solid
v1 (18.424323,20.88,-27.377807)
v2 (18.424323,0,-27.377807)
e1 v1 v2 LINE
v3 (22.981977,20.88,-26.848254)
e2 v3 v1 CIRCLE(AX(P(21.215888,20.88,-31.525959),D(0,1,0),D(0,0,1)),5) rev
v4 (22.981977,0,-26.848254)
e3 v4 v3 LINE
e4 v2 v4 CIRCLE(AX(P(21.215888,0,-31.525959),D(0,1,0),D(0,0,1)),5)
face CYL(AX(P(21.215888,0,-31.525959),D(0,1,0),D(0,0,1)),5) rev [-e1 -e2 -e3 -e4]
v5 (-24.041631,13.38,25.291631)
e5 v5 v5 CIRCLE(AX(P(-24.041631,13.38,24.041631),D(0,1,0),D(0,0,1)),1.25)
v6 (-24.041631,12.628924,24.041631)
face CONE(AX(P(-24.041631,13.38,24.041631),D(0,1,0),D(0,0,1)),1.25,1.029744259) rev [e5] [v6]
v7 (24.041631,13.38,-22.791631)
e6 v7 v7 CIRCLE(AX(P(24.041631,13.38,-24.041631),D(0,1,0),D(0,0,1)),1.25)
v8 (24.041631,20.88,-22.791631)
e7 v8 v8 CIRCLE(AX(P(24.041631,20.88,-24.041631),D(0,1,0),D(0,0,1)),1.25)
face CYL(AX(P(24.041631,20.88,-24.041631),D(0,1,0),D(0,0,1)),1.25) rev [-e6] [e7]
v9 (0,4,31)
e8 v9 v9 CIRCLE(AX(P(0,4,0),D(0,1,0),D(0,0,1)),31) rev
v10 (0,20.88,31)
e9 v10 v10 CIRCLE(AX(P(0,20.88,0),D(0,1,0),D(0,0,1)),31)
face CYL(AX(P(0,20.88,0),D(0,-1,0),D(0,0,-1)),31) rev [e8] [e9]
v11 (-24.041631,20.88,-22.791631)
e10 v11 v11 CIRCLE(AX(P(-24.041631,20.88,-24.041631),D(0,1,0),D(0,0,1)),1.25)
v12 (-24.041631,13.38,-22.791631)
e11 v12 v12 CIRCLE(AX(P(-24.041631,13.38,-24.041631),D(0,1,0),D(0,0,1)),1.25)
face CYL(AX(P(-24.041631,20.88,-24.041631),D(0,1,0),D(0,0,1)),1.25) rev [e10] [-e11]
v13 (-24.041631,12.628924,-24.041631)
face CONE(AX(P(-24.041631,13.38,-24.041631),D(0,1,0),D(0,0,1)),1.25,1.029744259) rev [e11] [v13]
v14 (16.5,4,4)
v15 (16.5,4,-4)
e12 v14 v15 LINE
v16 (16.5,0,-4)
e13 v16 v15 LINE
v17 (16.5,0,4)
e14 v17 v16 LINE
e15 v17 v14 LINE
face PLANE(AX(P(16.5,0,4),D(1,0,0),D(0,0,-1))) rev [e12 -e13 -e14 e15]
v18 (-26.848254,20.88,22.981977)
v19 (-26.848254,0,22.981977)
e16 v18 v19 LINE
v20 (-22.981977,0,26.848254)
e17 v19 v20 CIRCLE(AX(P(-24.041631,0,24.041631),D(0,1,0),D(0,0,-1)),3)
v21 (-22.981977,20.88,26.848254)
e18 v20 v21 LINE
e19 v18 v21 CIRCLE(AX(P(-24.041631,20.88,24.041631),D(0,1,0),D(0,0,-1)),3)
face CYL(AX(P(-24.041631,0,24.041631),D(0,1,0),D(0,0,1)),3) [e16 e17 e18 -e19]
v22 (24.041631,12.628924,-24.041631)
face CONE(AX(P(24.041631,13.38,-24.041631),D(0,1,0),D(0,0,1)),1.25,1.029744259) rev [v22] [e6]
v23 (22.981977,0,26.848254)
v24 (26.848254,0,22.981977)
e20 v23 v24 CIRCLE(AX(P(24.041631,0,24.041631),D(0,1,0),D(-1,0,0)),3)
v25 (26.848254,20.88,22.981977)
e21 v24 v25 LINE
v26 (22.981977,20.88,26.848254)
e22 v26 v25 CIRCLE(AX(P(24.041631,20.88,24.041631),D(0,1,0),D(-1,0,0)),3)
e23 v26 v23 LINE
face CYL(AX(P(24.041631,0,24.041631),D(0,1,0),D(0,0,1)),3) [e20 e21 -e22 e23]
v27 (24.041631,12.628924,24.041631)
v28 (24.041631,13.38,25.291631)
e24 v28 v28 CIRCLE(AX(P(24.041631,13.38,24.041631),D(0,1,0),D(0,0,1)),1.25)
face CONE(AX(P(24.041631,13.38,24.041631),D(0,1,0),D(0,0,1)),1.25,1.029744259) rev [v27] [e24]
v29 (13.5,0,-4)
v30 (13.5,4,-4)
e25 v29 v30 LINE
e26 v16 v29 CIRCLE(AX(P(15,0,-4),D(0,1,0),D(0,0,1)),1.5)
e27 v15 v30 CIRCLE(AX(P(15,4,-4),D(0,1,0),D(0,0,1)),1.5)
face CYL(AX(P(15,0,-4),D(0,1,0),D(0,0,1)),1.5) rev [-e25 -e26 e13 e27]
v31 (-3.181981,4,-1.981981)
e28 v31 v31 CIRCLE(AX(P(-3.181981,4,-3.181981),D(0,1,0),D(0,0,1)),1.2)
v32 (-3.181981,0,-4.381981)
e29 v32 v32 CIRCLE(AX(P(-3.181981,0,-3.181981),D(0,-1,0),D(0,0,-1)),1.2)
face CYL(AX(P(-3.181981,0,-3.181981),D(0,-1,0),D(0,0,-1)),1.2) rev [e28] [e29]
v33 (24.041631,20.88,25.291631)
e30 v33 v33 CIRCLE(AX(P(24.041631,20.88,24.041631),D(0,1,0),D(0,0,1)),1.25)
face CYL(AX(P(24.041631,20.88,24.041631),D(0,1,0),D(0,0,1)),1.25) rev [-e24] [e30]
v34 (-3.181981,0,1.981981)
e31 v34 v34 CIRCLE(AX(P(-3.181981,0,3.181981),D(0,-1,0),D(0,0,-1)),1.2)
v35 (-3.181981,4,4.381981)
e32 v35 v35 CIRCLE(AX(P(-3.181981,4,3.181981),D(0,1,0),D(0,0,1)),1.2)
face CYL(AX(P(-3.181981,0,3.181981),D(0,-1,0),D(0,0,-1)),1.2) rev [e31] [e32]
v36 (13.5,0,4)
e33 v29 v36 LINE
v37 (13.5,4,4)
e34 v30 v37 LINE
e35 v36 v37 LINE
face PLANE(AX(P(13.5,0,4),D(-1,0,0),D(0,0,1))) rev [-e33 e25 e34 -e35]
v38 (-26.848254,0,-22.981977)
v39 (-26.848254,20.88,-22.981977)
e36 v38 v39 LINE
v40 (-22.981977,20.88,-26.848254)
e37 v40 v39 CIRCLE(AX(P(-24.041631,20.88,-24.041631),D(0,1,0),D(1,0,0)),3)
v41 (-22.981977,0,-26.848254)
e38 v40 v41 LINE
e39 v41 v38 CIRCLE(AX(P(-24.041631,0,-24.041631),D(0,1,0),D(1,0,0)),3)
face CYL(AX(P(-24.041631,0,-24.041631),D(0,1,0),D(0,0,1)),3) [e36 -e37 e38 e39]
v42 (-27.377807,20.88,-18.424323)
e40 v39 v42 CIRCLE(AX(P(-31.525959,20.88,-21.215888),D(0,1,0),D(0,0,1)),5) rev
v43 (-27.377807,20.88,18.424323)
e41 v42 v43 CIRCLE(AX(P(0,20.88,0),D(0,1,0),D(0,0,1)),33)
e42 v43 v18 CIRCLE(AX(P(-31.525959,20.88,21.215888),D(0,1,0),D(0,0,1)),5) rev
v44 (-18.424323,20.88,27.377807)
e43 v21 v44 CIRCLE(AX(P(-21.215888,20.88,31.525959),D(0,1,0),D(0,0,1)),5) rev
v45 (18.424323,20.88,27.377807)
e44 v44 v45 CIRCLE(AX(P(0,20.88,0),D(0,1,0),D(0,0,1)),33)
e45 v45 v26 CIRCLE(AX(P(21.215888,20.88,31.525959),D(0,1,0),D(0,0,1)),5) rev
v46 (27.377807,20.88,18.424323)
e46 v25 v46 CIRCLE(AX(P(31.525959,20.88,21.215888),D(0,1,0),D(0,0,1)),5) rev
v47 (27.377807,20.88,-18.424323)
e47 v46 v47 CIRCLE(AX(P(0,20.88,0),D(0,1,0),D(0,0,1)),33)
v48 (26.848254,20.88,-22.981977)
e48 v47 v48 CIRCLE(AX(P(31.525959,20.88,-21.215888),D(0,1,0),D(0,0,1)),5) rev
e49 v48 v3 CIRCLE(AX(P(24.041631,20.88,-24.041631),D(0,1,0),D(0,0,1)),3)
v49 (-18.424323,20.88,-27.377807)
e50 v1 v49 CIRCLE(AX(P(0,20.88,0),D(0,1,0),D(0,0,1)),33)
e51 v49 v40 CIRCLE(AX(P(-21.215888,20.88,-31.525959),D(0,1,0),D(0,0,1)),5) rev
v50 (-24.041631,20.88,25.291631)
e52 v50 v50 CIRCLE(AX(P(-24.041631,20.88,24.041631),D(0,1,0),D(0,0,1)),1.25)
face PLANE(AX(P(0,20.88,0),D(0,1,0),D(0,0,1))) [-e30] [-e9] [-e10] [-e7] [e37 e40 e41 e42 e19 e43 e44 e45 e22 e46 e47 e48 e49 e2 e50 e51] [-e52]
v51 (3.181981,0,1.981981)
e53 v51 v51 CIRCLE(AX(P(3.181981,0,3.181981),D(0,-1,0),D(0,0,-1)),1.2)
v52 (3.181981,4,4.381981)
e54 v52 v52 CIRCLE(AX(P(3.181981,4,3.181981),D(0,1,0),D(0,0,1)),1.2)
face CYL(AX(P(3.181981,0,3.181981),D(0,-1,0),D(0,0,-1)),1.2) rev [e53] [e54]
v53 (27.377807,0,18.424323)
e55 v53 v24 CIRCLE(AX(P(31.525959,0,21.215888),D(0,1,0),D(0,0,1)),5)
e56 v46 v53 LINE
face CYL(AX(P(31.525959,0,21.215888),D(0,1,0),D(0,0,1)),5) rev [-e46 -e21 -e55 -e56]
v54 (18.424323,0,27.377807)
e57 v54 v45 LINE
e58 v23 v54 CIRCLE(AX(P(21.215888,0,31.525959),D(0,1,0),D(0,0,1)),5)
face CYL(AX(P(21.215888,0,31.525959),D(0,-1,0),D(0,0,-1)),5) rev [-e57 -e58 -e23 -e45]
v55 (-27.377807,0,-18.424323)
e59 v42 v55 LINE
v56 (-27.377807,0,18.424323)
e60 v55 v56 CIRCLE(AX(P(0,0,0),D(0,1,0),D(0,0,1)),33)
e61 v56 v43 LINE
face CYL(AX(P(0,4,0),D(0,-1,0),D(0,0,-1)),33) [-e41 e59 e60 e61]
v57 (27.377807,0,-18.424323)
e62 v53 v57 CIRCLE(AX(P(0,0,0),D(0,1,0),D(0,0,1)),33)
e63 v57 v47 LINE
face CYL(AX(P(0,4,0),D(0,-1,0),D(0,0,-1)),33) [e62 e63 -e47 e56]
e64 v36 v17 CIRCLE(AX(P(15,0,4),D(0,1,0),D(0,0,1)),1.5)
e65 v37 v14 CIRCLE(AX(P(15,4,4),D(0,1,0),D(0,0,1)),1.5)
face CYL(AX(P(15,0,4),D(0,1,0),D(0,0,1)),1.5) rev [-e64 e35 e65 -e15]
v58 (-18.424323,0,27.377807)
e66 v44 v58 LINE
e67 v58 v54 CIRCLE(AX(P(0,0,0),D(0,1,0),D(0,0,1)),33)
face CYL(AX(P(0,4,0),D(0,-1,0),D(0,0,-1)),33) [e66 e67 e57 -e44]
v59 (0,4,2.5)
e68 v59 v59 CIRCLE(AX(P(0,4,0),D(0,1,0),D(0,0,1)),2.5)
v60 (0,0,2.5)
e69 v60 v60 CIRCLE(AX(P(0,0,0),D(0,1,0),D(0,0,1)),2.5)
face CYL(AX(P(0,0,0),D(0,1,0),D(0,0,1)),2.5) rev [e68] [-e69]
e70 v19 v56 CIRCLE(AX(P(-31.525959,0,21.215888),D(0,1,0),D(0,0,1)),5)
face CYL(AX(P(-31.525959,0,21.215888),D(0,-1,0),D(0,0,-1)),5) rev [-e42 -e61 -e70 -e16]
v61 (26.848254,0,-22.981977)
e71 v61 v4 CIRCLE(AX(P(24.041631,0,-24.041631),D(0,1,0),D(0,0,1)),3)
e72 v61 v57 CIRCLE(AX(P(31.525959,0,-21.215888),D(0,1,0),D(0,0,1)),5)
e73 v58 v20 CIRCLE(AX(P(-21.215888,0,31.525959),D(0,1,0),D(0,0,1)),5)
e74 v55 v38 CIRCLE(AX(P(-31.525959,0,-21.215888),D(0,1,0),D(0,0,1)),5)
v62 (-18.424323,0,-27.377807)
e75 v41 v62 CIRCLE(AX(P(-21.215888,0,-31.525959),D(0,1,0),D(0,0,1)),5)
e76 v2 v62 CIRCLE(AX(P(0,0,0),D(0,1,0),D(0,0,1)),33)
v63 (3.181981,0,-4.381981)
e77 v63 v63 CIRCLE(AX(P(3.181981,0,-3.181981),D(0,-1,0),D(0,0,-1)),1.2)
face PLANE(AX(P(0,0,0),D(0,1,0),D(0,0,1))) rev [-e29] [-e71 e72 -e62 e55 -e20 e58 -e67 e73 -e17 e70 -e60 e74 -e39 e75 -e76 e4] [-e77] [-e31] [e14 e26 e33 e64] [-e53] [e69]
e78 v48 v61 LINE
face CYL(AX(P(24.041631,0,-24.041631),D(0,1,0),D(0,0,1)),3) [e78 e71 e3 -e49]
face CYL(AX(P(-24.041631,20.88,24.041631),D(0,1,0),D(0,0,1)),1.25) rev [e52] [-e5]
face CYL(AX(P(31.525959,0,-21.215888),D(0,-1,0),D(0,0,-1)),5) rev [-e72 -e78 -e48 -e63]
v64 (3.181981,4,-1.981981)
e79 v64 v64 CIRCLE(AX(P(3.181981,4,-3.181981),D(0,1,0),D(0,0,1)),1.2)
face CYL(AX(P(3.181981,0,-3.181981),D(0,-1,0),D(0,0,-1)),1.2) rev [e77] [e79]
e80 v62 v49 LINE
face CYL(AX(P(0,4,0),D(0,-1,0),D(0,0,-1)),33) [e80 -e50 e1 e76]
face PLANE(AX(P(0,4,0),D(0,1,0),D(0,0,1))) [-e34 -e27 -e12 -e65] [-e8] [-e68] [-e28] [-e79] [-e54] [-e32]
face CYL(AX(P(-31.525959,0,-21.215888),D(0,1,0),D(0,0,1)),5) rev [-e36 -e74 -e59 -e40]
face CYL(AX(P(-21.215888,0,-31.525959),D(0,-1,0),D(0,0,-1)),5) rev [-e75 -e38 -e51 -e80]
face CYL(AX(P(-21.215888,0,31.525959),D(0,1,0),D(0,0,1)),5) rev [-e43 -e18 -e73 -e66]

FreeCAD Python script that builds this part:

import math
import FreeCAD as App
import Part
import Sketcher
from FreeCAD import Vector
Q = App.Units.Quantity


def edges_at(feature, points):
    """Names of the edges that pass closest to the given points."""
    edges = feature.Shape.Edges
    near = lambda p: min(range(len(edges)), key=lambda i: edges[i].distToShape(Part.Vertex(*p))[0])
    return sorted({f"Edge{near(p) + 1}" for p in points})

doc = App.newDocument("Part")
params = doc.addObject("Spreadsheet::Sheet", "Params")
for row, (alias, value) in enumerate([
    ("sketch1_diameter", "66 mm"),
    ("pad1_length", "4 mm"),
    ("sketch2_diameter", "66 mm"),
    ("sketch2_diameter2", "62 mm"),
    ("pad2_length", "16.88 mm"),
    ("sketch3_diameter", "2.4 mm"),
    ("hole_diameter", "2.4 mm"),
    ("sketch4_diameter", "5 mm"),
    ("sketch5_radius", "1.5 mm"),
    ("sketch5_height", "8 mm"),
    ("sketch6_diameter", "6 mm"),
    ("pad3_length", "20.88 mm"),
    ("fillet_radius", "5 mm"),
    ("fillet2_radius", "5 mm"),
    ("sketch7_diameter", "2.5 mm"),
    ("hole2_diameter", "2.5 mm"),
    ("hole2_depth", "7.5 mm"),
], start=1):
    params.set(f"A{row}", alias)
    params.set(f"B{row}", "=" + value)
    params.setAlias(f"B{row}", alias)

body = doc.addObject("PartDesign::Body", "Body")

# Sketch on XZ plane
sketch1 = doc.addObject("Sketcher::SketchObject", "Sketch")
body.addObject(sketch1)
sketch1.AttachmentSupport = (doc.XZ_Plane, [""])
sketch1.MapMode = "FlatFace"
sketch1.addGeometry(Part.Circle(Vector(0, 0, 0), Vector(0, 0, 1), 33), False)
sketch1.addConstraint(Sketcher.Constraint("Coincident", 0, 3, -1, 1))
sketch1.addConstraint(Sketcher.Constraint("Diameter", 0, Q("66 mm")))
sketch1.setExpression("Constraints[1]", "Params.sketch1_diameter")
pad1 = doc.addObject("PartDesign::Pad", "Pad")
body.addObject(pad1)
pad1.Profile = sketch1
pad1.setExpression("Length", "Params.pad1_length")
pad1.Reversed = True

# Sketch on XZ plane
sketch2 = doc.addObject("Sketcher::SketchObject", "Sketch001")
body.addObject(sketch2)
sketch2.AttachmentSupport = (doc.XZ_Plane, [""])
sketch2.MapMode = "FlatFace"
sketch2.AttachmentOffset = App.Placement(Vector(0, 0, -4), App.Rotation())
sketch2.addGeometry(Part.Circle(Vector(0, 0, 0), Vector(0, 0, 1), 33), False)
sketch2.addGeometry(Part.Circle(Vector(0, 0, 0), Vector(0, 0, 1), 31), False)
sketch2.addConstraint(Sketcher.Constraint("Coincident", 0, 3, -1, 1))
sketch2.addConstraint(Sketcher.Constraint("Coincident", 1, 3, -1, 1))
sketch2.addConstraint(Sketcher.Constraint("Diameter", 0, Q("66 mm")))
sketch2.addConstraint(Sketcher.Constraint("Diameter", 1, Q("62 mm")))
sketch2.setExpression("Constraints[2]", "Params.sketch2_diameter")
sketch2.setExpression("Constraints[3]", "Params.sketch2_diameter2")
pad2 = doc.addObject("PartDesign::Pad", "Pad001")
body.addObject(pad2)
pad2.Profile = sketch2
pad2.setExpression("Length", "Params.pad2_length")
pad2.Reversed = True

# Sketch on XZ plane
sketch3 = doc.addObject("Sketcher::SketchObject", "Sketch002")
body.addObject(sketch3)
sketch3.AttachmentSupport = (doc.XZ_Plane, [""])
sketch3.MapMode = "FlatFace"
sketch3.addGeometry(Part.Circle(Vector(-3.2, -3.2, 0), Vector(0, 0, 1), 1.2), False)
sketch3.addGeometry(Part.Circle(Vector(-3.2, 3.2, 0), Vector(0, 0, 1), 1.2), False)
sketch3.addGeometry(Part.Circle(Vector(3.2, 3.2, 0), Vector(0, 0, 1), 1.2), False)
sketch3.addGeometry(Part.Circle(Vector(3.2, -3.2, 0), Vector(0, 0, 1), 1.2), False)
sketch3.addConstraint(Sketcher.Constraint("Equal", 0, 1))
sketch3.addConstraint(Sketcher.Constraint("Equal", 1, 2))
sketch3.addConstraint(Sketcher.Constraint("Equal", 2, 3))
sketch3.addConstraint(Sketcher.Constraint("Symmetric", 0, 3, 2, 3, -1, 1))
sketch3.addConstraint(Sketcher.Constraint("Symmetric", 1, 3, 3, 3, -1, 1))
sketch3.addConstraint(Sketcher.Constraint("Symmetric", 1, 3, 2, 3, -2))
sketch3.addConstraint(Sketcher.Constraint("Diameter", 0, Q("2.4 mm")))
sketch3.addConstraint(Sketcher.Constraint("DistanceX", 0, 3, -1, 1, Q("3.181981 mm")))
sketch3.addConstraint(Sketcher.Constraint("DistanceY", 0, 3, -1, 1, Q("3.181981 mm")))
sketch3.setExpression("Constraints[6]", "Params.sketch3_diameter")
doc.recompute()
hole = doc.addObject("PartDesign::Hole", "Hole")
body.addObject(hole)
hole.Profile = sketch3
hole.ThreadType = "None"
hole.setExpression("Diameter", "Params.hole_diameter")
hole.DepthType = "ThroughAll"

# Sketch on XZ plane
sketch4 = doc.addObject("Sketcher::SketchObject", "Sketch003")
body.addObject(sketch4)
sketch4.AttachmentSupport = (doc.XZ_Plane, [""])
sketch4.MapMode = "FlatFace"
sketch4.AttachmentOffset = App.Placement(Vector(0, 0, -4), App.Rotation())
sketch4.addGeometry(Part.Circle(Vector(0, 0, 0), Vector(0, 0, 1), 2.5), False)
sketch4.addConstraint(Sketcher.Constraint("Coincident", 0, 3, -1, 1))
sketch4.addConstraint(Sketcher.Constraint("Diameter", 0, Q("5 mm")))
sketch4.setExpression("Constraints[1]", "Params.sketch4_diameter")
pocket1 = doc.addObject("PartDesign::Pocket", "Pocket")
body.addObject(pocket1)
pocket1.Profile = sketch4
pocket1.Type = "ThroughAll"
pocket1.Reversed = True

# Sketch on XZ plane
sketch5 = doc.addObject("Sketcher::SketchObject", "Sketch004")
body.addObject(sketch5)
sketch5.AttachmentSupport = (doc.XZ_Plane, [""])
sketch5.MapMode = "FlatFace"
sketch5.AttachmentOffset = App.Placement(Vector(0, 0, -4), App.Rotation())
sketch5.addGeometry(Part.LineSegment(Vector(13.5, -4, 0), Vector(13.5, 4, 0)), False)
sketch5.addGeometry(Part.ArcOfCircle(Part.Circle(Vector(15, 4, 0), Vector(0, 0, 1), 1.5), math.radians(0), math.radians(180)), False)
sketch5.addGeometry(Part.LineSegment(Vector(16.5, 4, 0), Vector(16.5, -4, 0)), False)
sketch5.addGeometry(Part.ArcOfCircle(Part.Circle(Vector(15, -4, 0), Vector(0, 0, 1), 1.5), math.radians(180), math.radians(360)), False)
sketch5.addConstraint(Sketcher.Constraint("Tangent", 0, 2, 1, 2))
sketch5.addConstraint(Sketcher.Constraint("Tangent", 1, 1, 2, 1))
sketch5.addConstraint(Sketcher.Constraint("Tangent", 2, 2, 3, 2))
sketch5.addConstraint(Sketcher.Constraint("Tangent", 3, 1, 0, 1))
sketch5.addConstraint(Sketcher.Constraint("Vertical", 0))
sketch5.addConstraint(Sketcher.Constraint("Vertical", 2))
sketch5.addConstraint(Sketcher.Constraint("Radius", 1, Q("1.5 mm")))
sketch5.addConstraint(Sketcher.Constraint("DistanceY", 0, 1, 0, 2, Q("8 mm")))
sketch5.addConstraint(Sketcher.Constraint("DistanceX", -1, 1, 1, 3, Q("15 mm")))
sketch5.addConstraint(Sketcher.Constraint("DistanceY", -1, 1, 1, 3, Q("4 mm")))
sketch5.setExpression("Constraints[6]", "Params.sketch5_radius")
sketch5.setExpression("Constraints[7]", "Params.sketch5_height")
pocket2 = doc.addObject("PartDesign::Pocket", "Pocket001")
body.addObject(pocket2)
pocket2.Profile = sketch5
pocket2.Type = "ThroughAll"
pocket2.Reversed = True

# Sketch on XZ plane
sketch6 = doc.addObject("Sketcher::SketchObject", "Sketch005")
body.addObject(sketch6)
sketch6.AttachmentSupport = (doc.XZ_Plane, [""])
sketch6.MapMode = "FlatFace"
sketch6.AttachmentOffset = App.Placement(Vector(0, 0, -20.88), App.Rotation())
sketch6.addGeometry(Part.Circle(Vector(24, -24, 0), Vector(0, 0, 1), 3), False)
sketch6.addConstraint(Sketcher.Constraint("Diameter", 0, Q("6 mm")))
sketch6.addConstraint(Sketcher.Constraint("DistanceX", -1, 1, 0, 3, Q("24.041631 mm")))
sketch6.addConstraint(Sketcher.Constraint("DistanceY", 0, 3, -1, 1, Q("24.041631 mm")))
sketch6.setExpression("Constraints[0]", "Params.sketch6_diameter")
pad3 = doc.addObject("PartDesign::Pad", "Pad002")
body.addObject(pad3)
pad3.Profile = sketch6
pad3.setExpression("Length", "Params.pad3_length")
doc.recompute()

fillet = doc.addObject("PartDesign::Fillet", "Fillet")
body.addObject(fillet)
fillet.Base = (pad3, edges_at(pad3, [(25.22, 10.44, -21.283), (21.283, 10.44, -25.22)]))
fillet.setExpression("Radius", "Params.fillet_radius")
doc.recompute()

polarpattern = doc.addObject("PartDesign::PolarPattern", "PolarPattern")
body.addObject(polarpattern)
polarpattern.Originals = [pad3]
polarpattern.Axis = (doc.Y_Axis, [""])
polarpattern.Angle = 360
polarpattern.Occurrences = 4
body.Tip = polarpattern
doc.recompute()

fillet2 = doc.addObject("PartDesign::Fillet", "Fillet001")
body.addObject(fillet2)
fillet2.Base = (polarpattern, edges_at(polarpattern, [
    (-21.283, 10.44, -25.22),
    (-25.22, 10.44, -21.283),
    (-25.22, 10.44, 21.283),
    (-21.283, 10.44, 25.22),
    (21.283, 10.44, 25.22),
    (25.22, 10.44, 21.283),
]))
fillet2.setExpression("Radius", "Params.fillet2_radius")

# Sketch on XZ plane
sketch7 = doc.addObject("Sketcher::SketchObject", "Sketch006")
body.addObject(sketch7)
sketch7.AttachmentSupport = (doc.XZ_Plane, [""])
sketch7.MapMode = "FlatFace"
sketch7.AttachmentOffset = App.Placement(Vector(0, 0, -20.88), App.Rotation())
sketch7.addGeometry(Part.Circle(Vector(24, 24, 0), Vector(0, 0, 1), 1.2), False)
sketch7.addGeometry(Part.Circle(Vector(-24, 24, 0), Vector(0, 0, 1), 1.2), False)
sketch7.addGeometry(Part.Circle(Vector(-24, -24, 0), Vector(0, 0, 1), 1.2), False)
sketch7.addGeometry(Part.Circle(Vector(24, -24, 0), Vector(0, 0, 1), 1.2), False)
sketch7.addConstraint(Sketcher.Constraint("Equal", 0, 1))
sketch7.addConstraint(Sketcher.Constraint("Equal", 1, 2))
sketch7.addConstraint(Sketcher.Constraint("Equal", 2, 3))
sketch7.addConstraint(Sketcher.Constraint("Symmetric", 0, 3, 2, 3, -1, 1))
sketch7.addConstraint(Sketcher.Constraint("Symmetric", 1, 3, 3, 3, -1, 1))
sketch7.addConstraint(Sketcher.Constraint("Symmetric", 0, 3, 1, 3, -2))
sketch7.addConstraint(Sketcher.Constraint("Diameter", 0, Q("2.5 mm")))
sketch7.addConstraint(Sketcher.Constraint("DistanceX", -1, 1, 0, 3, Q("24.041631 mm")))
sketch7.addConstraint(Sketcher.Constraint("DistanceY", -1, 1, 0, 3, Q("24.041631 mm")))
sketch7.setExpression("Constraints[6]", "Params.sketch7_diameter")
doc.recompute()
hole2 = doc.addObject("PartDesign::Hole", "Hole001")
body.addObject(hole2)
hole2.Profile = sketch7
hole2.ThreadType = "None"
hole2.setExpression("Diameter", "Params.hole2_diameter")
hole2.DepthType = "Dimension"
hole2.setExpression("Depth", "Params.hole2_depth")
hole2.DrillPoint = "Angled"
hole2.DrillPointAngle = 118
hole2.Reversed = True

doc.recompute()
